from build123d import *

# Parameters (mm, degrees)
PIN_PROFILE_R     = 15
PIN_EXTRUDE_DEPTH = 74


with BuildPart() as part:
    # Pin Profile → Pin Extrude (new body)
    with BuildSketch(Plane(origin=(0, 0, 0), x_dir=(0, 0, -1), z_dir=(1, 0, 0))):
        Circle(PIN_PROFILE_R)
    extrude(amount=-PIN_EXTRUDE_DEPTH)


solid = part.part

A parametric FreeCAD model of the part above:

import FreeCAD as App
import Part
import Sketcher

doc = App.newDocument("Part")
params = doc.addObject("Spreadsheet::Sheet", "Params")
for row, (alias, value) in enumerate([
    ("sketch1_diameter", "30 mm"),
    ("pad1_length", "74 mm"),
], start=1):
    params.set(f"A{row}", alias)
    params.set(f"B{row}", "=" + value)
    params.setAlias(f"B{row}", alias)

body = doc.addObject("PartDesign::Body", "Body")

# Sketch on YZ plane
sketch1 = body.newObject("Sketcher::SketchObject", "Sketch")
sketch1.AttachmentSupport = (doc.getObject("YZ_Plane"), [""])
sketch1.MapMode = "FlatFace"
sketch1.addGeometry(Part.Circle(App.Vector(0, 0, 0), App.Vector(0, 0, 1), 15), False)
sketch1.addConstraint([
    Sketcher.Constraint("Coincident", 0, 3, -1, 1),
    Sketcher.Constraint("Diameter", 0, 30.0),
])
sketch1.setExpression("Constraints[1]", "Params.sketch1_diameter")
pad1 = body.newObject("PartDesign::Pad", "Pad")
pad1.Profile = sketch1
pad1.setExpression("Length", "Params.pad1_length")
pad1.Reversed = True

doc.recompute()
